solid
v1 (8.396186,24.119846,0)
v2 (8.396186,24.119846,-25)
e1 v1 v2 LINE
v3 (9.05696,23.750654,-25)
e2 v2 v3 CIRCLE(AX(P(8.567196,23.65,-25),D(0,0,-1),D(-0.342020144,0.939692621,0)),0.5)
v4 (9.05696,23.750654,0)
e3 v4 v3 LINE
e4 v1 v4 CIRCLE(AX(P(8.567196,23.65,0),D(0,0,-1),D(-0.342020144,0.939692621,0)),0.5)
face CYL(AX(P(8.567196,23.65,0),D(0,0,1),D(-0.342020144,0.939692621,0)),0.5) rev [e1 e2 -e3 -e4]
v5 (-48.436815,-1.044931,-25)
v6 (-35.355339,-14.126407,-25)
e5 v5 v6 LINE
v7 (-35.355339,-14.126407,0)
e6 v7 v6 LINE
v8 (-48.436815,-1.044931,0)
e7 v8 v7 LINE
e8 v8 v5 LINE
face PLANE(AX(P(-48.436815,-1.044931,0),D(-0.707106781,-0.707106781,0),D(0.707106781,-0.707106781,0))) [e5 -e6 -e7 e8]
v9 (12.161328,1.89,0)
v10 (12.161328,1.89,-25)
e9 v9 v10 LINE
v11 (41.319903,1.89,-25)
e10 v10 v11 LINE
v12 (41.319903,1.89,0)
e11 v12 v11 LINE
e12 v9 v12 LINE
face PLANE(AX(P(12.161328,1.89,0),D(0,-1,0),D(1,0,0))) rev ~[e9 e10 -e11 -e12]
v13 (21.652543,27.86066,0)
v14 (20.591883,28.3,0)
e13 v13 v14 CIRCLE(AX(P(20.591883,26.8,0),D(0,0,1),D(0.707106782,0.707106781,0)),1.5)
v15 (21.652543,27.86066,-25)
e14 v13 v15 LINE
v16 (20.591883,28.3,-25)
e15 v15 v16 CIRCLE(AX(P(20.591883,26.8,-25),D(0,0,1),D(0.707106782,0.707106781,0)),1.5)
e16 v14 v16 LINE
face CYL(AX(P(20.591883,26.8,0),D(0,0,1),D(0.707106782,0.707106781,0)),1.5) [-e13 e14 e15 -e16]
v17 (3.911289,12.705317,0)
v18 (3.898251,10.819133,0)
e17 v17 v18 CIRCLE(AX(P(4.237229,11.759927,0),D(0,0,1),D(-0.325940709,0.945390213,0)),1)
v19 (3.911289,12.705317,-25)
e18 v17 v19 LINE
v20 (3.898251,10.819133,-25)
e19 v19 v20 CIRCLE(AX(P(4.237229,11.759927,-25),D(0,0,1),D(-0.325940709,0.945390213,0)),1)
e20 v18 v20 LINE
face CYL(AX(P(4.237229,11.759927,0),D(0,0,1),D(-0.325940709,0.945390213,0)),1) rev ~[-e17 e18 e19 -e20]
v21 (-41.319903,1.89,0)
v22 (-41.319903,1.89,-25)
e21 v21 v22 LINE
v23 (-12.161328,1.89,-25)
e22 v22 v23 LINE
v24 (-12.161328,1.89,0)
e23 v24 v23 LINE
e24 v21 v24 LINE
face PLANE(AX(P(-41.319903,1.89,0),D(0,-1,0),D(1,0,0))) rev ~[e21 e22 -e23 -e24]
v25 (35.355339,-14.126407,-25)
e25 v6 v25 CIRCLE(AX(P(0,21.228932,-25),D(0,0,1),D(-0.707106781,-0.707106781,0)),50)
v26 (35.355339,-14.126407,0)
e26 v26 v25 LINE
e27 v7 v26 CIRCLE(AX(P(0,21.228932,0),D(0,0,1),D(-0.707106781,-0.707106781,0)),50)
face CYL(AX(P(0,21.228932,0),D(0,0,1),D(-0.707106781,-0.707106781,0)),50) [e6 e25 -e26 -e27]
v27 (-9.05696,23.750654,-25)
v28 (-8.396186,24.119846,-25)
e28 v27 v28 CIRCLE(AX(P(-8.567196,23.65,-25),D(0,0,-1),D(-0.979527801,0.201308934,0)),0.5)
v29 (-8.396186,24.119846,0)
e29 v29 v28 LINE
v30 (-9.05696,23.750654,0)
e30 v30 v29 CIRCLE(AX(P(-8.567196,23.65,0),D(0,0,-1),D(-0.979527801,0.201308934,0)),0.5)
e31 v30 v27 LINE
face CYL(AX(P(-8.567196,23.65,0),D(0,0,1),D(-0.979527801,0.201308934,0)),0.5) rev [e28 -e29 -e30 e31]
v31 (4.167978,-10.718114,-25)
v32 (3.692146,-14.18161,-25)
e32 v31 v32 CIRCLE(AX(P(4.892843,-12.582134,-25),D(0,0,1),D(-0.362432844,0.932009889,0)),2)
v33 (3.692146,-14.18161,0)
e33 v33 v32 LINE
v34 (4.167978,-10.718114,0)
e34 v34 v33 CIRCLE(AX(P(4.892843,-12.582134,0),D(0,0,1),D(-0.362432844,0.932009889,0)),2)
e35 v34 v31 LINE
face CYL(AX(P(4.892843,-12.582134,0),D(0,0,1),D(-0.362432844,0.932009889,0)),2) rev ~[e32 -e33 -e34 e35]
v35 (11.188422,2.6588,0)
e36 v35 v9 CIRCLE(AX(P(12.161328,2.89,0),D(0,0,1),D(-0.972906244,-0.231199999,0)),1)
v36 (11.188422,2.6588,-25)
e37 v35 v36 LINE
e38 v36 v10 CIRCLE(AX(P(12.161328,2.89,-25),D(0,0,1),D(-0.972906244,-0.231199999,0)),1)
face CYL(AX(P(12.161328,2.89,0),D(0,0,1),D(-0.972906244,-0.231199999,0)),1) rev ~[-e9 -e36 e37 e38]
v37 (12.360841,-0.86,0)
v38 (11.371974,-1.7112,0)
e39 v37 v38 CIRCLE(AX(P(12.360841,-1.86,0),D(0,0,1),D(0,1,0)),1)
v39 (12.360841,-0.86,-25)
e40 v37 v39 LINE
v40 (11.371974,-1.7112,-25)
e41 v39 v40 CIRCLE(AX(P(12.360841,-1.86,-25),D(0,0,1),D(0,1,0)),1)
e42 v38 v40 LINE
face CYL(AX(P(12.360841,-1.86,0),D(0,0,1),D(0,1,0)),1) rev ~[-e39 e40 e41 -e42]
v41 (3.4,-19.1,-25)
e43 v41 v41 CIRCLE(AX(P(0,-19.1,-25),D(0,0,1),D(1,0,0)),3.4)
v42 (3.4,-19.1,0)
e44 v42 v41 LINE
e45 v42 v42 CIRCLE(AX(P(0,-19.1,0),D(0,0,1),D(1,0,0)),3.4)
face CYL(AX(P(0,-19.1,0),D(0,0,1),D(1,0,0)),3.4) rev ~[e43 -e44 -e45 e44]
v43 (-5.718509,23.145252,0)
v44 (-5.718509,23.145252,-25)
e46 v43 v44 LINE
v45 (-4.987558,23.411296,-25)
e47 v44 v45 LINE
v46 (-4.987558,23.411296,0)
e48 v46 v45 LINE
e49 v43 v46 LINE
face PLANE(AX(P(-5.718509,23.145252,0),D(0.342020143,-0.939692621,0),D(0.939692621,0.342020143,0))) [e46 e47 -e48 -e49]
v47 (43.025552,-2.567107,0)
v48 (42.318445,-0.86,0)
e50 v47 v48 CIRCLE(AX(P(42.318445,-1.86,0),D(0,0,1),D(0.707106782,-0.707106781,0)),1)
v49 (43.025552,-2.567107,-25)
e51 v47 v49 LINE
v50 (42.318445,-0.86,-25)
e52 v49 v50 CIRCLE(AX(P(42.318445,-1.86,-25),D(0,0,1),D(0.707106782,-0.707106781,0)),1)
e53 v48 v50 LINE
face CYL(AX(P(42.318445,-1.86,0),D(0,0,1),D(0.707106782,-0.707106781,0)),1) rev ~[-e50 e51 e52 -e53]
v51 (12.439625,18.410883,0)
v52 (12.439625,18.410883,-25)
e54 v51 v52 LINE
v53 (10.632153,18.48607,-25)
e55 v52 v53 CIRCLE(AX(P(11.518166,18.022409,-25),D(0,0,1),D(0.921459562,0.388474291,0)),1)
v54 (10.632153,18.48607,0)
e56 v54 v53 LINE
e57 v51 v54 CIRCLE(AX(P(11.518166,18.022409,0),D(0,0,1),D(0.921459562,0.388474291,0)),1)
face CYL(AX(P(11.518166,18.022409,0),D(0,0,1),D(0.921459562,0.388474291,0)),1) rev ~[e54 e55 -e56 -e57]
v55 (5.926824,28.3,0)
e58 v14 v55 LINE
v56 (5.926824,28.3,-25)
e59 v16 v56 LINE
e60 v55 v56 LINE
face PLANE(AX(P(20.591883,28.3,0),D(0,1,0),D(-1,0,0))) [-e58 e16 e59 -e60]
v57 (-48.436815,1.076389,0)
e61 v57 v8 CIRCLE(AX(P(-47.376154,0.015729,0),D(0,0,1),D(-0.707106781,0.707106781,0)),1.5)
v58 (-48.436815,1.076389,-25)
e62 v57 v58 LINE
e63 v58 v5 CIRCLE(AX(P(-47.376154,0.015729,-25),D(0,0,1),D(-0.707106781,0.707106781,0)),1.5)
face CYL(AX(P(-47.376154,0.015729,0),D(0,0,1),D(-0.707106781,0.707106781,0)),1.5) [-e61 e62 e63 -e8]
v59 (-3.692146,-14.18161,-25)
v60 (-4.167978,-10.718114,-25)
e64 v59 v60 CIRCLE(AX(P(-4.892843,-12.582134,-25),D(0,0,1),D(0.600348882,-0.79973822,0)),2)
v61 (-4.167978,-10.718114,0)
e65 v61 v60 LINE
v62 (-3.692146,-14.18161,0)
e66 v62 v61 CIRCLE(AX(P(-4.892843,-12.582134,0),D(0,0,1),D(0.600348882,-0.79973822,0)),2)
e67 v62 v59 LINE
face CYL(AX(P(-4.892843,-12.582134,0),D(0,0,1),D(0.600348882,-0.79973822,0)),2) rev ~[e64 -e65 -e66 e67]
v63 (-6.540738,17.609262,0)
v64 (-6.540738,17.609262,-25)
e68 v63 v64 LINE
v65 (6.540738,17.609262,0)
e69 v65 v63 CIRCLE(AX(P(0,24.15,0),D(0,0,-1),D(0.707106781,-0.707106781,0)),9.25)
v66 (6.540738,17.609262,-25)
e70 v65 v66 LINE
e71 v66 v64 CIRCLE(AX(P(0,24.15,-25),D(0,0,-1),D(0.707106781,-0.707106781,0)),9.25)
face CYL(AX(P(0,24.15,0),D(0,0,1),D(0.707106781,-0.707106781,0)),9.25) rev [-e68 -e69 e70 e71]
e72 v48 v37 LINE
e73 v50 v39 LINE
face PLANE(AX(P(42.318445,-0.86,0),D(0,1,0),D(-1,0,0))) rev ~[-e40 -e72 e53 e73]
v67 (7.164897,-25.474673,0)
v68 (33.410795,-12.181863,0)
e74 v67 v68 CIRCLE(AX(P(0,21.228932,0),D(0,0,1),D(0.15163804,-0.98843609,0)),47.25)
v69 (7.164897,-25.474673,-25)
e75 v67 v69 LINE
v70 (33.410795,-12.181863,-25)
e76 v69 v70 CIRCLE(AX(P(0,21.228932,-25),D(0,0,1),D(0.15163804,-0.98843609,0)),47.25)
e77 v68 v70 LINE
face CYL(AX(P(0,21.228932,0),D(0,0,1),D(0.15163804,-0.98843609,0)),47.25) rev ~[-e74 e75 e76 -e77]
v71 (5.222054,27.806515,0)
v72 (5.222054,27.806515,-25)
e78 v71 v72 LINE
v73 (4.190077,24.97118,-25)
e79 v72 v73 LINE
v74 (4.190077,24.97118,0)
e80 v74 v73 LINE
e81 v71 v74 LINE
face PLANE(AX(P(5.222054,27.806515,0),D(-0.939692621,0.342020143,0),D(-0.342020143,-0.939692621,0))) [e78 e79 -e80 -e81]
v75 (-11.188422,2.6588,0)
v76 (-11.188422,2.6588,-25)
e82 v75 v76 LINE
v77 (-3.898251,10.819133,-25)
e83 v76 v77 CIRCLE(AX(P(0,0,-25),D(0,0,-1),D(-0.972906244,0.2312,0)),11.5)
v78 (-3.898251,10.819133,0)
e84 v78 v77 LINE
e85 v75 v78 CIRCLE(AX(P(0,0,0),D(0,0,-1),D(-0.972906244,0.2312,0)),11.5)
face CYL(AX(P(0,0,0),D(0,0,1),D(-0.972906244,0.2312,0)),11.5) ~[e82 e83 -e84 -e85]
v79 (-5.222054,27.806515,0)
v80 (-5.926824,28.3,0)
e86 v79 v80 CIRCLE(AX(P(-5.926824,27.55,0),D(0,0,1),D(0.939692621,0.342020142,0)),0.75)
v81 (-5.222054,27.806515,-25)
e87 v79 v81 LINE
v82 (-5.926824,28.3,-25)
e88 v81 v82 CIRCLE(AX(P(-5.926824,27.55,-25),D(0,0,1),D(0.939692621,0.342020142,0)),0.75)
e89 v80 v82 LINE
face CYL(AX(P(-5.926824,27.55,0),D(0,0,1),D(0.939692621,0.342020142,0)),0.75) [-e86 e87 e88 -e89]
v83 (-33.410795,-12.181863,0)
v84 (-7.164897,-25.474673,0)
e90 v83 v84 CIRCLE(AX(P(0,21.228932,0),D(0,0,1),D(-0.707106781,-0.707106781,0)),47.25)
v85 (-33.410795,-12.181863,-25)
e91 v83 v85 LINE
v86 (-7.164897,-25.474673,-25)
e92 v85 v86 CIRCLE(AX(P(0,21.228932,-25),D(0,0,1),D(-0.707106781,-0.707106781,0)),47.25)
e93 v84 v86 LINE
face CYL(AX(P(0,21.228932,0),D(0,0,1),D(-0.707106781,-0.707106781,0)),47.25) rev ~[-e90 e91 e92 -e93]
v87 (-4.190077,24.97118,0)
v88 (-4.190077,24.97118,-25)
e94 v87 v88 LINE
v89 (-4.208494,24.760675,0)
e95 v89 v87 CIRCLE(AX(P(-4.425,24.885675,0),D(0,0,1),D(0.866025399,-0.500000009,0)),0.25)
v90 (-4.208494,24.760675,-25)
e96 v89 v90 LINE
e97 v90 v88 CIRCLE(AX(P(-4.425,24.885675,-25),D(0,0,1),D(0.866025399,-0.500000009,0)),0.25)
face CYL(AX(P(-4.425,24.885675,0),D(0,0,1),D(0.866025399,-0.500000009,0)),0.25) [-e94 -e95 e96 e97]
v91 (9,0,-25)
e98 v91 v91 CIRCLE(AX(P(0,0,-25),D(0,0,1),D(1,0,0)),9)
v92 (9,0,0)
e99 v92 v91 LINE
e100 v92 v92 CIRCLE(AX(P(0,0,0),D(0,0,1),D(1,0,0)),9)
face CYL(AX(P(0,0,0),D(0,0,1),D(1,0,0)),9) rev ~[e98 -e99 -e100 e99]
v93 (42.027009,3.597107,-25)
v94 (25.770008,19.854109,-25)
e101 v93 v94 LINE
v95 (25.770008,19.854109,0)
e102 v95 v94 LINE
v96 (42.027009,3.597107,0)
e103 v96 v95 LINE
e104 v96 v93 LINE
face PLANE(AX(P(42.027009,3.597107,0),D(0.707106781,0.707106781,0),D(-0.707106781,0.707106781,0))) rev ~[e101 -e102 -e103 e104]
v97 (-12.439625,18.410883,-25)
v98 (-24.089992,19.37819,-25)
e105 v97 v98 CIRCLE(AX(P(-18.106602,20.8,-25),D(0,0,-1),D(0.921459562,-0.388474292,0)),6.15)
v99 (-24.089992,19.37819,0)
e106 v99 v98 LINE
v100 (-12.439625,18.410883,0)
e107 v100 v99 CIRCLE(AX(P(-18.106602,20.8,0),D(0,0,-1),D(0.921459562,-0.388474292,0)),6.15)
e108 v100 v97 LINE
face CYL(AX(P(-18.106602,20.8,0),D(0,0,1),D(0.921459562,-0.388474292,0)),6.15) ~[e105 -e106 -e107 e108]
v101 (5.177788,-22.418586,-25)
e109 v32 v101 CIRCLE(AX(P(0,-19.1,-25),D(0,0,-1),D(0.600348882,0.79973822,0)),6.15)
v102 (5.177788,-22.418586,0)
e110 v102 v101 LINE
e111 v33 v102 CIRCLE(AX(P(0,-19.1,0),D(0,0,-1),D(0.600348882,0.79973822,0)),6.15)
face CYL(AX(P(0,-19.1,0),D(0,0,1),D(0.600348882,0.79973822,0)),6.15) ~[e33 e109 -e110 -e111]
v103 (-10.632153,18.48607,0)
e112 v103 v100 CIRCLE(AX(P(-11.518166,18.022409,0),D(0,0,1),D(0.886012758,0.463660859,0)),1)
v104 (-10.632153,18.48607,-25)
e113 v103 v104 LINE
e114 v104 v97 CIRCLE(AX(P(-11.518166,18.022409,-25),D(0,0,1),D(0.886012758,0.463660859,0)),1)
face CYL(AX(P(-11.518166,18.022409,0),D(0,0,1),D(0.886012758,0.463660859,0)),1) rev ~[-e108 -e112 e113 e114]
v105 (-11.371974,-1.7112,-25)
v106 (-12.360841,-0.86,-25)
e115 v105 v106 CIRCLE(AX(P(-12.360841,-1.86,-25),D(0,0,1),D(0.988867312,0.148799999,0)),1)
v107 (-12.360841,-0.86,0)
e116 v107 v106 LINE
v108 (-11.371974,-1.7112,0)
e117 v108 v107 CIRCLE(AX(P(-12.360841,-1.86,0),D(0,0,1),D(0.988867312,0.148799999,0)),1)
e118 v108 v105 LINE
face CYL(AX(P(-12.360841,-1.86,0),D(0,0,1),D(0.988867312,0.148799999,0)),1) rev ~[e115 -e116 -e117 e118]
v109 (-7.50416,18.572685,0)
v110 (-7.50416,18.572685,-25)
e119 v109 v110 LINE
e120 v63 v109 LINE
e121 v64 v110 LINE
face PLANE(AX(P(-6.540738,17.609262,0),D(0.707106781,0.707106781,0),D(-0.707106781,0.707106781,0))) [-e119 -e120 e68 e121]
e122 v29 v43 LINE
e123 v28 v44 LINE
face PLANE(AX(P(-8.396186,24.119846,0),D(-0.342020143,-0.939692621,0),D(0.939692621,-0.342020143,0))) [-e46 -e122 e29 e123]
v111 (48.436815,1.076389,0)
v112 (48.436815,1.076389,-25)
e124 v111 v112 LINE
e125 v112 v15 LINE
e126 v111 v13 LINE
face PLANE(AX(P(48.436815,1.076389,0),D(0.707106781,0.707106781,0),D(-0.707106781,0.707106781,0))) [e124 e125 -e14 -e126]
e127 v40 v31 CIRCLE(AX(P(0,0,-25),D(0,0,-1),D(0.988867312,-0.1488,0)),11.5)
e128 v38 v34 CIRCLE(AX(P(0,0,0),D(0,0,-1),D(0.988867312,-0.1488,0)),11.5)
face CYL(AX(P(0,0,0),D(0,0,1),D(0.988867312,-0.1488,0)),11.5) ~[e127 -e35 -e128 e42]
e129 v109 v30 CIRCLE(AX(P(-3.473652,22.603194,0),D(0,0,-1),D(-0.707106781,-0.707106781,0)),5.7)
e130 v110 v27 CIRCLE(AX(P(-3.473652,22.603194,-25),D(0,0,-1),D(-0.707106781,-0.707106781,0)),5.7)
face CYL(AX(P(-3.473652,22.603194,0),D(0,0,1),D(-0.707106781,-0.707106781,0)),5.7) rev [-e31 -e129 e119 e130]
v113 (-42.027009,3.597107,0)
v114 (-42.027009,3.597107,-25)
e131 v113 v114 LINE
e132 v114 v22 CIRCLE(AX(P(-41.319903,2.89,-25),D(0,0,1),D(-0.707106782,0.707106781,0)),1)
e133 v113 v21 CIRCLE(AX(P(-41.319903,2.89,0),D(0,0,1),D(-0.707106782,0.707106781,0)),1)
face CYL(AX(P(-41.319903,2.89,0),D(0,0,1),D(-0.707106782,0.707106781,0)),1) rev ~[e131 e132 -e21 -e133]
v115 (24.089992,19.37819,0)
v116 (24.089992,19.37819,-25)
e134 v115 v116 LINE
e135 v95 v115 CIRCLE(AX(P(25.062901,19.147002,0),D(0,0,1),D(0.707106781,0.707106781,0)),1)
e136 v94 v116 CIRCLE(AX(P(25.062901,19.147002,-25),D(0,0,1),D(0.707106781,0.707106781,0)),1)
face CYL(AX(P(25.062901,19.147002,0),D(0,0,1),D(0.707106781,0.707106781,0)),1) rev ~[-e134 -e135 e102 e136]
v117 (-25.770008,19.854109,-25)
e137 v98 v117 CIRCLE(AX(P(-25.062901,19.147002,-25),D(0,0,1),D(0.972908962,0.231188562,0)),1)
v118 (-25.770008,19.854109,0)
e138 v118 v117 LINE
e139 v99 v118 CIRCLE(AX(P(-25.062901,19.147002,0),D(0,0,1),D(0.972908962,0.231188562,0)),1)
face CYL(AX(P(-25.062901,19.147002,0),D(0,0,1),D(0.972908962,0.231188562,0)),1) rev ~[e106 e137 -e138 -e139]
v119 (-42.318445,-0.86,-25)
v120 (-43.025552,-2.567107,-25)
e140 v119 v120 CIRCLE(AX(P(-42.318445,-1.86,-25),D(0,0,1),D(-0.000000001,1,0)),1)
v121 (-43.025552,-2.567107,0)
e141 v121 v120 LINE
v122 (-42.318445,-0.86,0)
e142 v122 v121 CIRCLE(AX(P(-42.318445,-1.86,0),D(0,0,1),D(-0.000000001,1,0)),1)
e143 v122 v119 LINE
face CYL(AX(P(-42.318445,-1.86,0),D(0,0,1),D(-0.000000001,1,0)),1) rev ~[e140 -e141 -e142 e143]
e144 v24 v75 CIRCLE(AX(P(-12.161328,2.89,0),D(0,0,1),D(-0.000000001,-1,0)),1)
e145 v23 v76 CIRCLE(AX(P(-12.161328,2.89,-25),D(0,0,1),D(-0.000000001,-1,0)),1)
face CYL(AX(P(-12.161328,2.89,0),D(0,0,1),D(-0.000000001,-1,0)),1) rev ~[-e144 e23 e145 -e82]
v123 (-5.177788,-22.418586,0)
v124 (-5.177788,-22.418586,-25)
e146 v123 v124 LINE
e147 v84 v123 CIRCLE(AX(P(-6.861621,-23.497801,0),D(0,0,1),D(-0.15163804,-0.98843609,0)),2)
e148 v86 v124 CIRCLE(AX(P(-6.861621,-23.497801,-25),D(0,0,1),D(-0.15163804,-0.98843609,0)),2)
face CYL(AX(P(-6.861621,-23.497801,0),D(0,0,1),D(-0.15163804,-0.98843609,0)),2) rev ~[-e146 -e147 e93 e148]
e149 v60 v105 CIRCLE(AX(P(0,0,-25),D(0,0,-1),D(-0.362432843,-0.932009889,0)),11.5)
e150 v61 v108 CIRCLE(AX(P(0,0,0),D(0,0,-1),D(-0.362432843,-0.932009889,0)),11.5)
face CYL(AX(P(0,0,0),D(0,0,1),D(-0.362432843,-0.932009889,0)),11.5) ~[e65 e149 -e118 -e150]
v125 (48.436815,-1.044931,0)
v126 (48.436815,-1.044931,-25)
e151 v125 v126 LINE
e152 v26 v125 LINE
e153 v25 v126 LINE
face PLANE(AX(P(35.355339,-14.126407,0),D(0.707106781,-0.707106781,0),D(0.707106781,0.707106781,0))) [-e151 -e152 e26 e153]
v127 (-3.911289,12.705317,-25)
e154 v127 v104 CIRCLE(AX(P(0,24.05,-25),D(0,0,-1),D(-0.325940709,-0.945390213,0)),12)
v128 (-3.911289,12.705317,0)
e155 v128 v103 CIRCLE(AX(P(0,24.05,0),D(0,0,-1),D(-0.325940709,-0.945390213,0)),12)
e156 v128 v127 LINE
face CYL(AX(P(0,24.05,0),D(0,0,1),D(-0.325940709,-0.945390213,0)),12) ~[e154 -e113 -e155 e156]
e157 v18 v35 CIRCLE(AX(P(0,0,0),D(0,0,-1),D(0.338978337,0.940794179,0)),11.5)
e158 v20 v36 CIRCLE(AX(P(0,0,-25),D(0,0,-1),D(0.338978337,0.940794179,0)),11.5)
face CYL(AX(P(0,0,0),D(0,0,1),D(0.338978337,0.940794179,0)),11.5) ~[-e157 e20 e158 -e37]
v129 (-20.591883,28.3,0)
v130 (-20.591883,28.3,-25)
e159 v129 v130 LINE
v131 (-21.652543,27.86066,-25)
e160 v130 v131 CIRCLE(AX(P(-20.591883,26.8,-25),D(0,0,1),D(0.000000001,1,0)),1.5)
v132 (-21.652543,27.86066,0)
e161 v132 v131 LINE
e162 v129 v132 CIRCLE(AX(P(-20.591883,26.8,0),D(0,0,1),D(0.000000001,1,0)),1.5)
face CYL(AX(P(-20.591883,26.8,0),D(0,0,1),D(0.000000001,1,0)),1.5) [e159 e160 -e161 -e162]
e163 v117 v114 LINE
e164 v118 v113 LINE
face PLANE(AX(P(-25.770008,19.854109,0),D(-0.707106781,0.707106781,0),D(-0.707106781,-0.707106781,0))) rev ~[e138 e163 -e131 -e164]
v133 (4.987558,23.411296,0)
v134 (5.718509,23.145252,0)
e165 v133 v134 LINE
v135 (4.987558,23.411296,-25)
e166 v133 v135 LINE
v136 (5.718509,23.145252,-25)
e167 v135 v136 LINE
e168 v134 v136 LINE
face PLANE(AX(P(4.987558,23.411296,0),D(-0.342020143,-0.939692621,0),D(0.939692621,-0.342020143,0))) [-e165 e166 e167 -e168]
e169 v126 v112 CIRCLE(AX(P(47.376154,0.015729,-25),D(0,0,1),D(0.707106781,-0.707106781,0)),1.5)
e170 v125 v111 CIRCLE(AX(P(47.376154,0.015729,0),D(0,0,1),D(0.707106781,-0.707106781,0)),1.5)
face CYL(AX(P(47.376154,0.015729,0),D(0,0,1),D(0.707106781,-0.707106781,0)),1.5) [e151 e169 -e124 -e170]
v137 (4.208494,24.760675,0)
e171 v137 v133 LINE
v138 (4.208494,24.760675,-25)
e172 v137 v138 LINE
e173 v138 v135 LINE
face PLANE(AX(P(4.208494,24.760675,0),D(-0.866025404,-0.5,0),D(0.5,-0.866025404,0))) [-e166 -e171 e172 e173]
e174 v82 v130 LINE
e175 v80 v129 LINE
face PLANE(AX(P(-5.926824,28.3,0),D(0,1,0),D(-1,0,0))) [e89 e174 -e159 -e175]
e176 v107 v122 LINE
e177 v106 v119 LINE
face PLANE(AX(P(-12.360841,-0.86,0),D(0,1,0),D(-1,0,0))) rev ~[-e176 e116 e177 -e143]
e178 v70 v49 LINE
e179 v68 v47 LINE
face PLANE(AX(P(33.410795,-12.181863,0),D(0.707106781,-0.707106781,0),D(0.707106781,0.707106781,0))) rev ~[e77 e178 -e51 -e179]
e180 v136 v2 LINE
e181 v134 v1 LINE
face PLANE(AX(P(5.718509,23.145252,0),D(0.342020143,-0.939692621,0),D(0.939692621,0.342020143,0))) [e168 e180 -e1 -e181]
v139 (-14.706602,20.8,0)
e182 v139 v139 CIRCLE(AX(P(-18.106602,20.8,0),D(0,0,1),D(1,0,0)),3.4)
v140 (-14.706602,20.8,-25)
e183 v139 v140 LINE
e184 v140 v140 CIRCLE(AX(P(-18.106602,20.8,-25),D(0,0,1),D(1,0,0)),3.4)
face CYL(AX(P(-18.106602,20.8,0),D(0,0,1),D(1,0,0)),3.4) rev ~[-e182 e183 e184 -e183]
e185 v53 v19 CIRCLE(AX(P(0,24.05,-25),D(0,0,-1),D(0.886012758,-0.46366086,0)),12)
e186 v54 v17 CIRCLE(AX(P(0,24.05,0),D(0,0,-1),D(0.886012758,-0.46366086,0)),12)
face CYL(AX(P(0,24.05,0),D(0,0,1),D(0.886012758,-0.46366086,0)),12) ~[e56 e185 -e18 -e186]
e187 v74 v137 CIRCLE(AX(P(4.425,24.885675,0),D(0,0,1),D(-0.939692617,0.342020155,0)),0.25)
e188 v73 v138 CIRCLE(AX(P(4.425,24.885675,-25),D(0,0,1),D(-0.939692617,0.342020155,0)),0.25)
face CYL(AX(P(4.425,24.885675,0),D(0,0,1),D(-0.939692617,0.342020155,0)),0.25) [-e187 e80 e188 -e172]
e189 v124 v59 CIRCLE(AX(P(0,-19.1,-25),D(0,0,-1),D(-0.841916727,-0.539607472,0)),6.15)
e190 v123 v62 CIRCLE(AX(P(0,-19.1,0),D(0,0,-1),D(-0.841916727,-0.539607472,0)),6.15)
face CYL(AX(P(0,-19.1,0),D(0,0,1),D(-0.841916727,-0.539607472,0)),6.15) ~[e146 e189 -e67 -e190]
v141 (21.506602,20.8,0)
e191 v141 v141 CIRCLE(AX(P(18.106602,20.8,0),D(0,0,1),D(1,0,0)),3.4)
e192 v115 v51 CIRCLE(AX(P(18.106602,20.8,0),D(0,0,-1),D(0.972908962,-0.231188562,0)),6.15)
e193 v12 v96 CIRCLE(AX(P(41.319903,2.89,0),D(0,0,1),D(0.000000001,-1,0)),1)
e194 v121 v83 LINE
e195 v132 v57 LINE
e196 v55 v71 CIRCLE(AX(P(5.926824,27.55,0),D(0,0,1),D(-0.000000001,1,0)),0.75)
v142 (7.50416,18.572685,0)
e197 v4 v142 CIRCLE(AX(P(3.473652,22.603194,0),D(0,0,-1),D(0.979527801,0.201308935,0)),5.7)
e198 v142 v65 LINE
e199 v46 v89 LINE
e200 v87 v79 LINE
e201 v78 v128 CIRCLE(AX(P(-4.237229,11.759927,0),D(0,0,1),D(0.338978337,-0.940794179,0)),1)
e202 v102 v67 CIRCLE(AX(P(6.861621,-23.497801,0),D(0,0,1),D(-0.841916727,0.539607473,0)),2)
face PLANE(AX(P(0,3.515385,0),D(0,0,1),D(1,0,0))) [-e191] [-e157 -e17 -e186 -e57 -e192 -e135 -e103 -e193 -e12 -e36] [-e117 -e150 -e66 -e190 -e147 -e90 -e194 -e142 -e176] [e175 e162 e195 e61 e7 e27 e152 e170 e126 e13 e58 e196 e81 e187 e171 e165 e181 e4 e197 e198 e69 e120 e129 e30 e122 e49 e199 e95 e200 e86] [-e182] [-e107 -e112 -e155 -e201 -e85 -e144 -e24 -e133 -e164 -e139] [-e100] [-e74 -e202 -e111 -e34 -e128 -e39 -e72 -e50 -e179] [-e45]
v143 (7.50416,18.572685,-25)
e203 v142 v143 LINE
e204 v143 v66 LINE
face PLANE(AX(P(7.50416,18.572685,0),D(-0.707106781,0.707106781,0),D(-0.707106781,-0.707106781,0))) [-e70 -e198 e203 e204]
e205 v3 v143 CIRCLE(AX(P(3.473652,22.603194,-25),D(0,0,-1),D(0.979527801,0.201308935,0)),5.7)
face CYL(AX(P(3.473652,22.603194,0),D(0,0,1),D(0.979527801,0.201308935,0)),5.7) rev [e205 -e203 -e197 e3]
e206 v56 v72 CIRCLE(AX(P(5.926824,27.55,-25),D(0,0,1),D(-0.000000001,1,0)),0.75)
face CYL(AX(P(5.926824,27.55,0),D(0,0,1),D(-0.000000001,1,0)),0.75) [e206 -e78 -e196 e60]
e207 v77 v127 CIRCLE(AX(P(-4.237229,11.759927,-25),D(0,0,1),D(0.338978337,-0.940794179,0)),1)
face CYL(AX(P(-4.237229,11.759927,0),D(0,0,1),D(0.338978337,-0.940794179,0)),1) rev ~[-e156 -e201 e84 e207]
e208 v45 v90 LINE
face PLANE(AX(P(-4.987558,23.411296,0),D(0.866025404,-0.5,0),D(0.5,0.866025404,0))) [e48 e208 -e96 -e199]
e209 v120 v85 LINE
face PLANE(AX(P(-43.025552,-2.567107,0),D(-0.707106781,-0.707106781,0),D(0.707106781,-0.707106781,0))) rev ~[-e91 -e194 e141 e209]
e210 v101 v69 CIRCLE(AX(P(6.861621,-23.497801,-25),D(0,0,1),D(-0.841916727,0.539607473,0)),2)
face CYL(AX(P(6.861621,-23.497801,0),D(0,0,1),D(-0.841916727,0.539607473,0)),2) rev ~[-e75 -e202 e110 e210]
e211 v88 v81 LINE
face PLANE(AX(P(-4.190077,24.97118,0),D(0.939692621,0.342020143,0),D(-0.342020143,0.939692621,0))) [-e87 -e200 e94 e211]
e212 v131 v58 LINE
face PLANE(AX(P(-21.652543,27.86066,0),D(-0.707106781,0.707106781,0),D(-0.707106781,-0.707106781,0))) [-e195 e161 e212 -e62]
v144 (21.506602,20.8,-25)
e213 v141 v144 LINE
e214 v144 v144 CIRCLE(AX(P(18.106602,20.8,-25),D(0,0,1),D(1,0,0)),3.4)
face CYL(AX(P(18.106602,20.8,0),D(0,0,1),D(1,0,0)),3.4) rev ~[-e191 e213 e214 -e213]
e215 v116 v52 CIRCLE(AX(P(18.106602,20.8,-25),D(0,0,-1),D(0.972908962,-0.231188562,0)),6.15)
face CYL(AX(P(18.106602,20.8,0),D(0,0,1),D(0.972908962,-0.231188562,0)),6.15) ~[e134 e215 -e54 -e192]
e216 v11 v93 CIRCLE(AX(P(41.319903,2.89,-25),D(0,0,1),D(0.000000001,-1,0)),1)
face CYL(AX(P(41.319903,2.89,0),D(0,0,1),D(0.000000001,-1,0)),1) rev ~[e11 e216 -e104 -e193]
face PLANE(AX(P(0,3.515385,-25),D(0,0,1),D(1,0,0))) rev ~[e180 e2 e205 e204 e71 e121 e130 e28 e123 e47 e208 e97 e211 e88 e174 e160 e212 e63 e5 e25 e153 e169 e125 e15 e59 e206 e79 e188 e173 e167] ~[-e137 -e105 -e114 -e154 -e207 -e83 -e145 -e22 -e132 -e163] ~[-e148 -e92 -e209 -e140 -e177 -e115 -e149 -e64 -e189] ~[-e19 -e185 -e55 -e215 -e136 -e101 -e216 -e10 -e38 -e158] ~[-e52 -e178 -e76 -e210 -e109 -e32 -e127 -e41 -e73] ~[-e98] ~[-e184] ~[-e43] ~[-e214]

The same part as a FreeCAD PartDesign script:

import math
import FreeCAD as App
import Part
import Sketcher

V = App.Vector
Q = App.Units.Quantity

doc = App.newDocument("Part")
params = doc.addObject("Spreadsheet::Sheet", "Params")
for row, (alias, value) in enumerate([
    ("sketch1_diameter", "18 mm"),
    ("sketch1_radius", "50 mm"),
    ("sketch1_radius2", "1 mm"),
    ("sketch1_radius3", "2 mm"),
    ("sketch1_radius4", "12 mm"),
    ("pad1_length", "25 mm"),
], start=1):
    params.set(f"A{row}", alias)
    params.set(f"B{row}", "=" + value)
    params.setAlias(f"B{row}", alias)

body = doc.addObject("PartDesign::Body", "Body")

# Sketch on XY plane
sketch1 = body.newObject("Sketcher::SketchObject", "Sketch")
sketch1.AttachmentSupport = (doc.getObject("XY_Plane"), [""])
sketch1.MapMode = "FlatFace"
sketch1.addGeometry(Part.LineSegment(V(5.222054, 27.806515, 0), V(4.190077, 24.97118, 0)), False)
sketch1.addGeometry(Part.ArcOfCircle(Part.Circle(V(4.425, 24.885675, 0), V(0, 0, 1), 0.25), math.radians(159.999999), math.radians(210.000001)), False)
sketch1.addGeometry(Part.LineSegment(V(4.208494, 24.760675, 0), V(4.987558, 23.411296, 0)), False)
sketch1.addGeometry(Part.LineSegment(V(4.987558, 23.411296, 0), V(5.718509, 23.145252, 0)), False)
sketch1.addGeometry(Part.LineSegment(V(5.718509, 23.145252, 0), V(8.396186, 24.119846, 0)), False)
sketch1.addGeometry(Part.ArcOfCircle(Part.Circle(V(8.567196, 23.65, 0), V(0, 0, 1), 0.5), math.radians(11.613512), math.radians(110)), False)
sketch1.addGeometry(Part.ArcOfCircle(Part.Circle(V(3.473652, 22.603194, 0), V(0, 0, 1), 5.7), math.radians(-45), math.radians(11.613512)), False)
sketch1.addGeometry(Part.LineSegment(V(7.50416, 18.572685, 0), V(6.540738, 17.609262, 0)), False)
sketch1.addGeometry(Part.ArcOfCircle(Part.Circle(V(0, 24.15, 0), V(0, 0, 1), 9.25), math.radians(-135), math.radians(-45)), False)
sketch1.addGeometry(Part.LineSegment(V(-6.540738, 17.609262, 0), V(-7.50416, 18.572685, 0)), False)
sketch1.addGeometry(Part.ArcOfCircle(Part.Circle(V(-3.473652, 22.603194, 0), V(0, 0, 1), 5.7), math.radians(168.386488), math.radians(225)), False)
sketch1.addGeometry(Part.ArcOfCircle(Part.Circle(V(-8.567196, 23.65, 0), V(0, 0, 1), 0.5), math.radians(70), math.radians(168.386488)), False)
sketch1.addGeometry(Part.LineSegment(V(-8.396186, 24.119846, 0), V(-5.718509, 23.145252, 0)), False)
sketch1.addGeometry(Part.LineSegment(V(-5.718509, 23.145252, 0), V(-4.987558, 23.411296, 0)), False)
sketch1.addGeometry(Part.LineSegment(V(-4.987558, 23.411296, 0), V(-4.208494, 24.760675, 0)), False)
sketch1.addGeometry(Part.ArcOfCircle(Part.Circle(V(-4.425, 24.885675, 0), V(0, 0, 1), 0.25), math.radians(-30.000001), math.radians(20.000001)), False)
sketch1.addGeometry(Part.LineSegment(V(-4.190077, 24.97118, 0), V(-5.222054, 27.806515, 0)), False)
sketch1.addGeometry(Part.ArcOfCircle(Part.Circle(V(-5.926824, 27.55, 0), V(0, 0, 1), 0.75), math.radians(20), math.radians(90)), False)
sketch1.addGeometry(Part.LineSegment(V(-5.926824, 28.3, 0), V(-20.591883, 28.3, 0)), False)
sketch1.addGeometry(Part.ArcOfCircle(Part.Circle(V(-20.591883, 26.8, 0), V(0, 0, 1), 1.5), math.radians(90), math.radians(135)), False)
sketch1.addGeometry(Part.LineSegment(V(-21.652543, 27.86066, 0), V(-48.436815, 1.076389, 0)), False)
sketch1.addGeometry(Part.ArcOfCircle(Part.Circle(V(-47.376154, 0.015729, 0), V(0, 0, 1), 1.5), math.radians(135), math.radians(225)), False)
sketch1.addGeometry(Part.LineSegment(V(-48.436815, -1.044931, 0), V(-35.355339, -14.126407, 0)), False)
sketch1.addGeometry(Part.ArcOfCircle(Part.Circle(V(0, 21.228932, 0), V(0, 0, 1), 50), math.radians(-135), math.radians(-45)), False)
sketch1.addGeometry(Part.LineSegment(V(35.355339, -14.126407, 0), V(48.436815, -1.044931, 0)), False)
sketch1.addGeometry(Part.ArcOfCircle(Part.Circle(V(47.376154, 0.015729, 0), V(0, 0, 1), 1.5), math.radians(-45), math.radians(45)), False)
sketch1.addGeometry(Part.LineSegment(V(48.436815, 1.076389, 0), V(21.652543, 27.86066, 0)), False)
sketch1.addGeometry(Part.ArcOfCircle(Part.Circle(V(20.591883, 26.8, 0), V(0, 0, 1), 1.5), math.radians(45), math.radians(90)), False)
sketch1.addGeometry(Part.LineSegment(V(20.591883, 28.3, 0), V(5.926824, 28.3, 0)), False)
sketch1.addGeometry(Part.ArcOfCircle(Part.Circle(V(5.926824, 27.55, 0), V(0, 0, 1), 0.75), math.radians(90), math.radians(160)), False)
sketch1.addGeometry(Part.LineSegment(V(-42.318445, -0.86, 0), V(-12.360841, -0.86, 0)), False)
sketch1.addGeometry(Part.ArcOfCircle(Part.Circle(V(-12.360841, -1.86, 0), V(0, 0, 1), 1), math.radians(8.557391), math.radians(90)), False)
sketch1.addGeometry(Part.ArcOfCircle(Part.Circle(V(0, 0, 0), V(0, 0, 1), 11.5), math.radians(-171.442609), math.radians(-111.249681)), False)
sketch1.addGeometry(Part.ArcOfCircle(Part.Circle(V(-4.892843, -12.582134, 0), V(0, 0, 1), 2), math.radians(-53.105111), math.radians(68.750319)), False)
sketch1.addGeometry(Part.ArcOfCircle(Part.Circle(V(0, -19.1, 0), V(0, 0, 1), 6.15), math.radians(126.894889), math.radians(212.656922)), False)
sketch1.addGeometry(Part.ArcOfCircle(Part.Circle(V(-6.861621, -23.497801, 0), V(0, 0, 1), 2), math.radians(-98.721865), math.radians(32.656922)), False)
sketch1.addGeometry(Part.ArcOfCircle(Part.Circle(V(0, 21.228932, 0), V(0, 0, 1), 47.25), math.radians(-135), math.radians(-98.721865)), False)
sketch1.addGeometry(Part.LineSegment(V(-33.410795, -12.181863, 0), V(-43.025552, -2.567107, 0)), False)
sketch1.addGeometry(Part.ArcOfCircle(Part.Circle(V(-42.318445, -1.86, 0), V(0, 0, 1), 1), math.radians(90), math.radians(225)), False)
sketch1.addGeometry(Part.Circle(V(0, -19.1, 0), V(0, 0, 1), 3.4), False)
sketch1.addGeometry(Part.LineSegment(V(43.025552, -2.567107, 0), V(33.410795, -12.181863, 0)), False)
sketch1.addGeometry(Part.ArcOfCircle(Part.Circle(V(0, 21.228932, 0), V(0, 0, 1), 47.25), math.radians(-81.278135), math.radians(-45)), False)
sketch1.addGeometry(Part.ArcOfCircle(Part.Circle(V(6.861621, -23.497801, 0), V(0, 0, 1), 2), math.radians(147.343078), math.radians(278.721865)), False)
sketch1.addGeometry(Part.ArcOfCircle(Part.Circle(V(0, -19.1, 0), V(0, 0, 1), 6.15), math.radians(-32.656922), math.radians(53.105111)), False)
sketch1.addGeometry(Part.ArcOfCircle(Part.Circle(V(4.892843, -12.582134, 0), V(0, 0, 1), 2), math.radians(111.249681), math.radians(233.105111)), False)
sketch1.addGeometry(Part.ArcOfCircle(Part.Circle(V(0, 0, 0), V(0, 0, 1), 11.5), math.radians(-68.750319), math.radians(-8.557391)), False)
sketch1.addGeometry(Part.ArcOfCircle(Part.Circle(V(12.360841, -1.86, 0), V(0, 0, 1), 1), math.radians(90), math.radians(171.442609)), False)
sketch1.addGeometry(Part.LineSegment(V(12.360841, -0.86, 0), V(42.318445, -0.86, 0)), False)
sketch1.addGeometry(Part.ArcOfCircle(Part.Circle(V(42.318445, -1.86, 0), V(0, 0, 1), 1), math.radians(-45), math.radians(90)), False)
sketch1.addGeometry(Part.LineSegment(V(-42.027009, 3.597107, 0), V(-25.770008, 19.854109, 0)), False)
sketch1.addGeometry(Part.ArcOfCircle(Part.Circle(V(-25.062901, 19.147002, 0), V(0, 0, 1), 1), math.radians(13.367057), math.radians(135)), False)
sketch1.addGeometry(Part.ArcOfCircle(Part.Circle(V(-18.106602, 20.8, 0), V(0, 0, 1), 6.15), math.radians(-166.632943), math.radians(-22.859599)), False)
sketch1.addGeometry(Part.ArcOfCircle(Part.Circle(V(-11.518166, 18.022409, 0), V(0, 0, 1), 1), math.radians(27.62359), math.radians(157.140401)), False)
sketch1.addGeometry(Part.ArcOfCircle(Part.Circle(V(0, 24.05, 0), V(0, 0, 1), 12), math.radians(-152.37641), math.radians(-109.022577)), False)
sketch1.addGeometry(Part.ArcOfCircle(Part.Circle(V(-4.237229, 11.759927, 0), V(0, 0, 1), 1), math.radians(-70.185359), math.radians(70.977423)), False)
sketch1.addGeometry(Part.ArcOfCircle(Part.Circle(V(0, 0, 0), V(0, 0, 1), 11.5), math.radians(109.814641), math.radians(166.632269)), False)
sketch1.addGeometry(Part.ArcOfCircle(Part.Circle(V(-12.161328, 2.89, 0), V(0, 0, 1), 1), math.radians(-90), math.radians(-13.367731)), False)
sketch1.addGeometry(Part.LineSegment(V(-12.161328, 1.89, 0), V(-41.319903, 1.89, 0)), False)
sketch1.addGeometry(Part.ArcOfCircle(Part.Circle(V(-41.319903, 2.89, 0), V(0, 0, 1), 1), math.radians(135), math.radians(270)), False)
sketch1.addGeometry(Part.Circle(V(-18.106602, 20.8, 0), V(0, 0, 1), 3.4), False)
sketch1.addGeometry(Part.Circle(V(0, 0, 0), V(0, 0, 1), 9), False)
sketch1.addGeometry(Part.LineSegment(V(25.770008, 19.854109, 0), V(42.027009, 3.597107, 0)), False)
sketch1.addGeometry(Part.ArcOfCircle(Part.Circle(V(41.319903, 2.89, 0), V(0, 0, 1), 1), math.radians(-90), math.radians(45)), False)
sketch1.addGeometry(Part.LineSegment(V(41.319903, 1.89, 0), V(12.161328, 1.89, 0)), False)
sketch1.addGeometry(Part.ArcOfCircle(Part.Circle(V(12.161328, 2.89, 0), V(0, 0, 1), 1), math.radians(-166.632269), math.radians(-90)), False)
sketch1.addGeometry(Part.ArcOfCircle(Part.Circle(V(0, 0, 0), V(0, 0, 1), 11.5), math.radians(13.367731), math.radians(70.185359)), False)
sketch1.addGeometry(Part.ArcOfCircle(Part.Circle(V(4.237229, 11.759927, 0), V(0, 0, 1), 1), math.radians(109.022577), math.radians(250.185359)), False)
sketch1.addGeometry(Part.ArcOfCircle(Part.Circle(V(0, 24.05, 0), V(0, 0, 1), 12), math.radians(-70.977423), math.radians(-27.62359)), False)
sketch1.addGeometry(Part.ArcOfCircle(Part.Circle(V(11.518166, 18.022409, 0), V(0, 0, 1), 1), math.radians(22.859599), math.radians(152.37641)), False)
sketch1.addGeometry(Part.ArcOfCircle(Part.Circle(V(18.106602, 20.8, 0), V(0, 0, 1), 6.15), math.radians(-157.140401), math.radians(-13.367057)), False)
sketch1.addGeometry(Part.ArcOfCircle(Part.Circle(V(25.062901, 19.147002, 0), V(0, 0, 1), 1), math.radians(45), math.radians(166.632943)), False)
sketch1.addGeometry(Part.Circle(V(18.106602, 20.8, 0), V(0, 0, 1), 3.4), False)
sketch1.addConstraint(Sketcher.Constraint("Tangent", 0, 2, 1, 1))
sketch1.addConstraint(Sketcher.Constraint("Tangent", 1, 2, 2, 1))
sketch1.addConstraint(Sketcher.Constraint("Coincident", 2, 2, 3, 1))
sketch1.addConstraint(Sketcher.Constraint("Coincident", 3, 2, 4, 1))
sketch1.addConstraint(Sketcher.Constraint("Tangent", 4, 2, 5, 2))
sketch1.addConstraint(Sketcher.Constraint("Tangent", 5, 1, 6, 2))
sketch1.addConstraint(Sketcher.Constraint("Tangent", 6, 1, 7, 1))
sketch1.addConstraint(Sketcher.Constraint("Tangent", 7, 2, 8, 2))
sketch1.addConstraint(Sketcher.Constraint("Tangent", 8, 1, 9, 1))
sketch1.addConstraint(Sketcher.Constraint("Tangent", 9, 2, 10, 2))
sketch1.addConstraint(Sketcher.Constraint("Tangent", 10, 1, 11, 2))
sketch1.addConstraint(Sketcher.Constraint("Tangent", 11, 1, 12, 1))
sketch1.addConstraint(Sketcher.Constraint("Coincident", 12, 2, 13, 1))
sketch1.addConstraint(Sketcher.Constraint("Coincident", 13, 2, 14, 1))
sketch1.addConstraint(Sketcher.Constraint("Tangent", 14, 2, 15, 1))
sketch1.addConstraint(Sketcher.Constraint("Tangent", 15, 2, 16, 1))
sketch1.addConstraint(Sketcher.Constraint("Tangent", 16, 2, 17, 1))
sketch1.addConstraint(Sketcher.Constraint("Tangent", 17, 2, 18, 1))
sketch1.addConstraint(Sketcher.Constraint("Tangent", 18, 2, 19, 1))
sketch1.addConstraint(Sketcher.Constraint("Tangent", 19, 2, 20, 1))
sketch1.addConstraint(Sketcher.Constraint("Tangent", 20, 2, 21, 1))
sketch1.addConstraint(Sketcher.Constraint("Tangent", 21, 2, 22, 1))
sketch1.addConstraint(Sketcher.Constraint("Tangent", 22, 2, 23, 1))
sketch1.addConstraint(Sketcher.Constraint("Tangent", 23, 2, 24, 1))
sketch1.addConstraint(Sketcher.Constraint("Tangent", 24, 2, 25, 1))
sketch1.addConstraint(Sketcher.Constraint("Tangent", 25, 2, 26, 1))
sketch1.addConstraint(Sketcher.Constraint("Tangent", 26, 2, 27, 1))
sketch1.addConstraint(Sketcher.Constraint("Tangent", 27, 2, 28, 1))
sketch1.addConstraint(Sketcher.Constraint("Tangent", 28, 2, 29, 1))
sketch1.addConstraint(Sketcher.Constraint("Tangent", 29, 2, 0, 1))
sketch1.addConstraint(Sketcher.Constraint("Tangent", 30, 2, 31, 2))
sketch1.addConstraint(Sketcher.Constraint("Tangent", 31, 1, 32, 1))
sketch1.addConstraint(Sketcher.Constraint("Tangent", 32, 2, 33, 2))
sketch1.addConstraint(Sketcher.Constraint("Tangent", 33, 1, 34, 1))
sketch1.addConstraint(Sketcher.Constraint("Tangent", 34, 2, 35, 2))
sketch1.addConstraint(Sketcher.Constraint("Tangent", 35, 1, 36, 2))
sketch1.addConstraint(Sketcher.Constraint("Tangent", 36, 1, 37, 1))
sketch1.addConstraint(Sketcher.Constraint("Tangent", 37, 2, 38, 2))
sketch1.addConstraint(Sketcher.Constraint("Tangent", 38, 1, 30, 1))
sketch1.addConstraint(Sketcher.Constraint("Tangent", 40, 2, 41, 2))
sketch1.addConstraint(Sketcher.Constraint("Tangent", 41, 1, 42, 2))
sketch1.addConstraint(Sketcher.Constraint("Tangent", 42, 1, 43, 1))
sketch1.addConstraint(Sketcher.Constraint("Tangent", 43, 2, 44, 2))
sketch1.addConstraint(Sketcher.Constraint("Tangent", 44, 1, 45, 1))
sketch1.addConstraint(Sketcher.Constraint("Tangent", 45, 2, 46, 2))
sketch1.addConstraint(Sketcher.Constraint("Tangent", 46, 1, 47, 1))
sketch1.addConstraint(Sketcher.Constraint("Tangent", 47, 2, 48, 2))
sketch1.addConstraint(Sketcher.Constraint("Tangent", 48, 1, 40, 1))
sketch1.addConstraint(Sketcher.Constraint("Tangent", 49, 2, 50, 2))
sketch1.addConstraint(Sketcher.Constraint("Tangent", 50, 1, 51, 1))
sketch1.addConstraint(Sketcher.Constraint("Tangent", 51, 2, 52, 2))
sketch1.addConstraint(Sketcher.Constraint("Tangent", 52, 1, 53, 1))
sketch1.addConstraint(Sketcher.Constraint("Tangent", 53, 2, 54, 2))
sketch1.addConstraint(Sketcher.Constraint("Tangent", 54, 1, 55, 1))
sketch1.addConstraint(Sketcher.Constraint("Tangent", 55, 2, 56, 2))
sketch1.addConstraint(Sketcher.Constraint("Tangent", 56, 1, 57, 1))
sketch1.addConstraint(Sketcher.Constraint("Tangent", 57, 2, 58, 2))
sketch1.addConstraint(Sketcher.Constraint("Tangent", 58, 1, 49, 1))
sketch1.addConstraint(Sketcher.Constraint("Tangent", 61, 2, 62, 2))
sketch1.addConstraint(Sketcher.Constraint("Tangent", 62, 1, 63, 1))
sketch1.addConstraint(Sketcher.Constraint("Tangent", 63, 2, 64, 2))
sketch1.addConstraint(Sketcher.Constraint("Tangent", 64, 1, 65, 1))
sketch1.addConstraint(Sketcher.Constraint("Tangent", 65, 2, 66, 2))
sketch1.addConstraint(Sketcher.Constraint("Tangent", 66, 1, 67, 1))
sketch1.addConstraint(Sketcher.Constraint("Tangent", 67, 2, 68, 2))
sketch1.addConstraint(Sketcher.Constraint("Tangent", 68, 1, 69, 1))
sketch1.addConstraint(Sketcher.Constraint("Tangent", 69, 2, 70, 2))
sketch1.addConstraint(Sketcher.Constraint("Tangent", 70, 1, 61, 1))
sketch1.addConstraint(Sketcher.Constraint("Horizontal", 18))
sketch1.addConstraint(Sketcher.Constraint("Horizontal", 28))
sketch1.addConstraint(Sketcher.Constraint("Horizontal", 30))
sketch1.addConstraint(Sketcher.Constraint("Horizontal", 47))
sketch1.addConstraint(Sketcher.Constraint("Horizontal", 57))
sketch1.addConstraint(Sketcher.Constraint("Horizontal", 63))
sketch1.addConstraint(Sketcher.Constraint("Coincident", 32, 3, -1, 1))
sketch1.addConstraint(Sketcher.Constraint("Coincident", 45, 3, -1, 1))
sketch1.addConstraint(Sketcher.Constraint("Coincident", 55, 3, -1, 1))
sketch1.addConstraint(Sketcher.Constraint("Coincident", 60, 3, -1, 1))
sketch1.addConstraint(Sketcher.Constraint("Coincident", 65, 3, -1, 1))
sketch1.addConstraint(Sketcher.Constraint("Coincident", 36, 3, 23, 3))
sketch1.addConstraint(Sketcher.Constraint("Coincident", 39, 3, 34, 3))
sketch1.addConstraint(Sketcher.Constraint("Coincident", 41, 3, 23, 3))
sketch1.addConstraint(Sketcher.Constraint("Coincident", 43, 3, 34, 3))
sketch1.addConstraint(Sketcher.Constraint("Coincident", 59, 3, 51, 3))
sketch1.addConstraint(Sketcher.Constraint("Coincident", 67, 3, 53, 3))
sketch1.addConstraint(Sketcher.Constraint("Coincident", 71, 3, 69, 3))
sketch1.addConstraint(Sketcher.Constraint("Equal", 6, 10))
sketch1.addConstraint(Sketcher.Constraint("Equal", 5, 11))
sketch1.addConstraint(Sketcher.Constraint("Equal", 1, 15))
sketch1.addConstraint(Sketcher.Constraint("Equal", 19, 21))
sketch1.addConstraint(Sketcher.Constraint("Equal", 21, 25))
sketch1.addConstraint(Sketcher.Constraint("Equal", 25, 27))
sketch1.addConstraint(Sketcher.Constraint("Equal", 17, 29))
sketch1.addConstraint(Sketcher.Constraint("Equal", 33, 35))
sketch1.addConstraint(Sketcher.Constraint("Equal", 31, 38))
sketch1.addConstraint(Sketcher.Constraint("Equal", 36, 41))
sketch1.addConstraint(Sketcher.Constraint("Equal", 35, 42))
sketch1.addConstraint(Sketcher.Constraint("Equal", 34, 43))
sketch1.addConstraint(Sketcher.Constraint("Equal", 42, 44))
sketch1.addConstraint(Sketcher.Constraint("Equal", 32, 45))
sketch1.addConstraint(Sketcher.Constraint("Equal", 38, 46))
sketch1.addConstraint(Sketcher.Constraint("Equal", 46, 48))
sketch1.addConstraint(Sketcher.Constraint("Equal", 48, 50))
sketch1.addConstraint(Sketcher.Constraint("Equal", 43, 51))
sketch1.addConstraint(Sketcher.Constraint("Equal", 50, 52))
sketch1.addConstraint(Sketcher.Constraint("Equal", 52, 54))
sketch1.addConstraint(Sketcher.Constraint("Equal", 45, 55))
sketch1.addConstraint(Sketcher.Constraint("Equal", 54, 56))
sketch1.addConstraint(Sketcher.Constraint("Equal", 56, 58))
sketch1.addConstraint(Sketcher.Constraint("Equal", 39, 59))
sketch1.addConstraint(Sketcher.Constraint("Equal", 58, 62))
sketch1.addConstraint(Sketcher.Constraint("Equal", 62, 64))
sketch1.addConstraint(Sketcher.Constraint("Equal", 55, 65))
sketch1.addConstraint(Sketcher.Constraint("Equal", 64, 66))
sketch1.addConstraint(Sketcher.Constraint("Equal", 53, 67))
sketch1.addConstraint(Sketcher.Constraint("Equal", 66, 68))
sketch1.addConstraint(Sketcher.Constraint("Equal", 51, 69))
sketch1.addConstraint(Sketcher.Constraint("Equal", 68, 70))
sketch1.addConstraint(Sketcher.Constraint("Equal", 59, 71))
sketch1.addConstraint(Sketcher.Constraint("Symmetric", 6, 3, 10, 3, -2))
sketch1.addConstraint(Sketcher.Constraint("Symmetric", 1, 3, 15, 3, -2))
sketch1.addConstraint(Sketcher.Constraint("Symmetric", 21, 3, 25, 3, -2))
sketch1.addConstraint(Sketcher.Constraint("Symmetric", 19, 3, 27, 3, -2))
sketch1.addConstraint(Sketcher.Constraint("Symmetric", 35, 3, 42, 3, -2))
sketch1.addConstraint(Sketcher.Constraint("Symmetric", 38, 3, 48, 3, -2))
sketch1.addConstraint(Sketcher.Constraint("Symmetric", 58, 3, 62, 3, -2))
sketch1.addConstraint(Sketcher.Constraint("Symmetric", 52, 3, 68, 3, -2))
sketch1.addConstraint(Sketcher.Constraint("Symmetric", 50, 3, 70, 3, -2))
sketch1.addConstraint(Sketcher.Constraint("Symmetric", 4, 2, 11, 1, -2))
sketch1.addConstraint(Sketcher.Constraint("Symmetric", 2, 2, 13, 2, -2))
sketch1.addConstraint(Sketcher.Constraint("PointOnObject", 8, 3, -2))
sketch1.addConstraint(Sketcher.Constraint("Perpendicular", 0, 3))
sketch1.addConstraint(Sketcher.Constraint("Perpendicular", 7, 9))
sketch1.addConstraint(Sketcher.Constraint("Parallel", 3, 12))
sketch1.addConstraint(Sketcher.Constraint("Parallel", 4, 13))
sketch1.addConstraint(Sketcher.Constraint("Perpendicular", 13, 16))
sketch1.addConstraint(Sketcher.Constraint("Perpendicular", 9, 20))
sketch1.addConstraint(Sketcher.Constraint("Perpendicular", 20, 22))
sketch1.addConstraint(Sketcher.Constraint("Parallel", 26, 37))
sketch1.addConstraint(Sketcher.Constraint("Parallel", 40, 49))
sketch1.addConstraint(Sketcher.Constraint("Diameter", 60, Q("18 mm")))
sketch1.addConstraint(Sketcher.Constraint("Radius", 23, Q("50 mm")))
sketch1.addConstraint(Sketcher.Constraint("Radius", 31, Q("1 mm")))
sketch1.addConstraint(Sketcher.Constraint("Radius", 33, Q("2 mm")))
sketch1.addConstraint(Sketcher.Constraint("Radius", 53, Q("12 mm")))
sketch1.addConstraint(Sketcher.Constraint("Diameter", 39, Q("6.8 mm")))
sketch1.addConstraint(Sketcher.Constraint("Radius", 5, Q("0.5 mm")))
sketch1.addConstraint(Sketcher.Constraint("Radius", 6, Q("5.7 mm")))
sketch1.addConstraint(Sketcher.Constraint("Radius", 19, Q("1.5 mm")))
sketch1.addConstraint(Sketcher.Constraint("Radius", 32, Q("11.5 mm")))
sketch1.addConstraint(Sketcher.Constraint("Angle", 0, Q("-110 deg")))
sketch1.addConstraint(Sketcher.Constraint("Angle", 2, Q("-60 deg")))
sketch1.addConstraint(Sketcher.Constraint("Radius", 1, Q("0.25 mm")))
sketch1.addConstraint(Sketcher.Constraint("Radius", 8, Q("9.25 mm")))
sketch1.addConstraint(Sketcher.Constraint("Radius", 17, Q("0.75 mm")))
sketch1.addConstraint(Sketcher.Constraint("Radius", 34, Q("6.15 mm")))
sketch1.addConstraint(Sketcher.Constraint("Radius", 36, Q("47.25 mm")))
sketch1.addConstraint(Sketcher.Constraint("Distance", 22, Q("18.5 mm")))
sketch1.addConstraint(Sketcher.Constraint("DistanceY", -1, 1, 19, 3, Q("26.8 mm")))
sketch1.addConstraint(Sketcher.Constraint("DistanceY", 34, 3, -1, 1, Q("19.1 mm")))
sketch1.addConstraint(Sketcher.Constraint("DistanceY", -1, 1, 51, 3, Q("20.8 mm")))
sketch1.addConstraint(Sketcher.Constraint("DistanceY", -1, 1, 5, 3, Q("23.65 mm")))
sketch1.addConstraint(Sketcher.Constraint("DistanceY", -1, 1, 8, 3, Q("24.15 mm")))
sketch1.addConstraint(Sketcher.Constraint("DistanceY", 31, 3, -1, 1, Q("1.86 mm")))
sketch1.addConstraint(Sketcher.Constraint("DistanceY", -1, 1, 53, 3, Q("24.05 mm")))
sketch1.addConstraint(Sketcher.Constraint("DistanceY", -1, 1, 56, 3, Q("2.89 mm")))
sketch1.addConstraint(Sketcher.Constraint("DistanceX", -1, 1, 1, 3, Q("4.425 mm")))
sketch1.addConstraint(Sketcher.Constraint("DistanceY", -1, 1, 50, 3, Q("19.147002 mm")))
sketch1.addConstraint(Sketcher.Constraint("Distance", 0, Q("3.0173 mm")))
sketch1.addConstraint(Sketcher.Constraint("DistanceX", 18, 2, 18, 1, Q("14.665059 mm")))
sketch1.addConstraint(Sketcher.Constraint("DistanceX", 50, 3, -1, 1, Q("25.062901 mm")))
sketch1.addConstraint(Sketcher.Constraint("Distance", 2, Q("1.558129 mm")))
sketch1.addConstraint(Sketcher.Constraint("Distance", 3, Q("0.777862 mm")))
sketch1.setExpression("Constraints[140]", "Params.sketch1_diameter")
sketch1.setExpression("Constraints[141]", "Params.sketch1_radius")
sketch1.setExpression("Constraints[142]", "Params.sketch1_radius2")
sketch1.setExpression("Constraints[143]", "Params.sketch1_radius3")
sketch1.setExpression("Constraints[144]", "Params.sketch1_radius4")
pad1 = body.newObject("PartDesign::Pad", "Pad")
pad1.Profile = sketch1
pad1.setExpression("Length", "Params.pad1_length")
pad1.Reversed = True

doc.recompute()
